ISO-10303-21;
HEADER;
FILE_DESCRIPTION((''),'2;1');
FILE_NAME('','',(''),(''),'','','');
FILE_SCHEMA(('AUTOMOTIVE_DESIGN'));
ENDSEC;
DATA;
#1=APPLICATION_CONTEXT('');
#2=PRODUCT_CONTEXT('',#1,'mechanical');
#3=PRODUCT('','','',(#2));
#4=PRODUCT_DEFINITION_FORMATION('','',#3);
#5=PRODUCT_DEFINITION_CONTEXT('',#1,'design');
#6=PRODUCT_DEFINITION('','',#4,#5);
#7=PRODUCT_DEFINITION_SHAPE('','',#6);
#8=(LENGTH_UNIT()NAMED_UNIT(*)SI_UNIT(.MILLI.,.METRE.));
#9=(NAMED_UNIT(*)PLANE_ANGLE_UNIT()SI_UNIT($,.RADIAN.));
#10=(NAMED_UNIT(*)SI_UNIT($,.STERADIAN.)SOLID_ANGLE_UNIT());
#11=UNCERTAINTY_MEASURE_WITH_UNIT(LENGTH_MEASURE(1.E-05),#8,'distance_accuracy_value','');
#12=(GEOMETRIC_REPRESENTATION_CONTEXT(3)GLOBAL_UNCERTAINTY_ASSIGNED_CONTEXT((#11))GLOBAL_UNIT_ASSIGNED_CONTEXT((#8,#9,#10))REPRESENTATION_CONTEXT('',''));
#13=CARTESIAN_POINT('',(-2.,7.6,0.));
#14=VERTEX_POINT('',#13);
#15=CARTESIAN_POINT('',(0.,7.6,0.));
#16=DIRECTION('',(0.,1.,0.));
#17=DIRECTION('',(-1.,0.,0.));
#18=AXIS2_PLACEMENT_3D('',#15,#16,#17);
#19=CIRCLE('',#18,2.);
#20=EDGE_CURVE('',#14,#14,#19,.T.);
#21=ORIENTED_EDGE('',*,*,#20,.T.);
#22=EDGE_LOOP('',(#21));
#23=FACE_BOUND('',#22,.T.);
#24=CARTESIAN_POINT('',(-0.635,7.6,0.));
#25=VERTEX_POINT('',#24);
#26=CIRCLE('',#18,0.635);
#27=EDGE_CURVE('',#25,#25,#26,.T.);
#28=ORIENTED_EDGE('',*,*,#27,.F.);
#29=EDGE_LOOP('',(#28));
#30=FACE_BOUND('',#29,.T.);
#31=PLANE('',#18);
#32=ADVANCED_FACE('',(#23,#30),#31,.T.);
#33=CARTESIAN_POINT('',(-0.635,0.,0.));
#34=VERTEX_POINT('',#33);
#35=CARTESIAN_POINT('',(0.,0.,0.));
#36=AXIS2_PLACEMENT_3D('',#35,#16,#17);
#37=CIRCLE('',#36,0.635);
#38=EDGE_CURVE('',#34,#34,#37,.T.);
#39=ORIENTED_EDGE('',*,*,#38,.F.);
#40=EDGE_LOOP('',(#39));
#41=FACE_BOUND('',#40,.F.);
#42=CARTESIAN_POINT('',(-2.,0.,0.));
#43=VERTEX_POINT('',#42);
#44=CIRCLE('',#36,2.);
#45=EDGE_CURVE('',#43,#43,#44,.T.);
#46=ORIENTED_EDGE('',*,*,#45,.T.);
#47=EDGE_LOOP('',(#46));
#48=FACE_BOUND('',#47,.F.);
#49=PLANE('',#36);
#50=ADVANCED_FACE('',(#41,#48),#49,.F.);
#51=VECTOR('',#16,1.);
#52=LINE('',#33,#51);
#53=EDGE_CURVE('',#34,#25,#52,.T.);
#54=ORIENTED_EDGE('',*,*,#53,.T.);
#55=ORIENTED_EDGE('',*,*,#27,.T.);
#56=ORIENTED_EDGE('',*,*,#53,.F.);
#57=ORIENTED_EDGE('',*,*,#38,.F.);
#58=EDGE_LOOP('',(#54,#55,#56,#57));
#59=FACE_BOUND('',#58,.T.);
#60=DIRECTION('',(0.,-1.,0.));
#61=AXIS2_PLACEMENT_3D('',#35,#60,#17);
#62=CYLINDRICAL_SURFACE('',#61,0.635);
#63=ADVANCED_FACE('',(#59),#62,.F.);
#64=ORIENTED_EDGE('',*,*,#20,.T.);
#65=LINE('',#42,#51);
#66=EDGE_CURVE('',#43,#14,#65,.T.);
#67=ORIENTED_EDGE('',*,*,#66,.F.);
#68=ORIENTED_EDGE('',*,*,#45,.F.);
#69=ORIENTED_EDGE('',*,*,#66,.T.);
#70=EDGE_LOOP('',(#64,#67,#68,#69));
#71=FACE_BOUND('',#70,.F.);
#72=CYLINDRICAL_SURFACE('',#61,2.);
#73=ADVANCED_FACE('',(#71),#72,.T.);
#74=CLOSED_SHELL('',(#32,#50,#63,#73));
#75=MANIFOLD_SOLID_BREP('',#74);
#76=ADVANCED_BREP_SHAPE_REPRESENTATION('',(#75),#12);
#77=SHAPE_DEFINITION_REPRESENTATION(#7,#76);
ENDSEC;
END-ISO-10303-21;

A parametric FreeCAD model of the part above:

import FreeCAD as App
import Part
import Sketcher

V = App.Vector
Q = App.Units.Quantity

doc = App.newDocument("Part")
body = doc.addObject("PartDesign::Body", "Body")

sketch1 = body.newObject("Sketcher::SketchObject", "Sketch")
sketch1.AttachmentSupport = (doc.getObject("XZ_Plane"), [""])
sketch1.MapMode = "FlatFace"
sketch1.addGeometry(Part.Circle(V(0, 0, 0), V(0, 0, 1), 2), False)
sketch1.addGeometry(Part.Circle(V(0, 0, 0), V(0, 0, 1), 0.6), False)
sketch1.addConstraint(Sketcher.Constraint("Coincident", 0, 3, -1, 1))
sketch1.addConstraint(Sketcher.Constraint("Coincident", 1, 3, -1, 1))
sketch1.addConstraint(Sketcher.Constraint("Diameter", 0, Q("4 mm")))
sketch1.addConstraint(Sketcher.Constraint("Diameter", 1, Q("1.27 mm")))
pad1 = body.newObject("PartDesign::Pad", "Pad")
pad1.Profile = sketch1
pad1.Length = 7.6
pad1.Reversed = True

doc.recompute()
